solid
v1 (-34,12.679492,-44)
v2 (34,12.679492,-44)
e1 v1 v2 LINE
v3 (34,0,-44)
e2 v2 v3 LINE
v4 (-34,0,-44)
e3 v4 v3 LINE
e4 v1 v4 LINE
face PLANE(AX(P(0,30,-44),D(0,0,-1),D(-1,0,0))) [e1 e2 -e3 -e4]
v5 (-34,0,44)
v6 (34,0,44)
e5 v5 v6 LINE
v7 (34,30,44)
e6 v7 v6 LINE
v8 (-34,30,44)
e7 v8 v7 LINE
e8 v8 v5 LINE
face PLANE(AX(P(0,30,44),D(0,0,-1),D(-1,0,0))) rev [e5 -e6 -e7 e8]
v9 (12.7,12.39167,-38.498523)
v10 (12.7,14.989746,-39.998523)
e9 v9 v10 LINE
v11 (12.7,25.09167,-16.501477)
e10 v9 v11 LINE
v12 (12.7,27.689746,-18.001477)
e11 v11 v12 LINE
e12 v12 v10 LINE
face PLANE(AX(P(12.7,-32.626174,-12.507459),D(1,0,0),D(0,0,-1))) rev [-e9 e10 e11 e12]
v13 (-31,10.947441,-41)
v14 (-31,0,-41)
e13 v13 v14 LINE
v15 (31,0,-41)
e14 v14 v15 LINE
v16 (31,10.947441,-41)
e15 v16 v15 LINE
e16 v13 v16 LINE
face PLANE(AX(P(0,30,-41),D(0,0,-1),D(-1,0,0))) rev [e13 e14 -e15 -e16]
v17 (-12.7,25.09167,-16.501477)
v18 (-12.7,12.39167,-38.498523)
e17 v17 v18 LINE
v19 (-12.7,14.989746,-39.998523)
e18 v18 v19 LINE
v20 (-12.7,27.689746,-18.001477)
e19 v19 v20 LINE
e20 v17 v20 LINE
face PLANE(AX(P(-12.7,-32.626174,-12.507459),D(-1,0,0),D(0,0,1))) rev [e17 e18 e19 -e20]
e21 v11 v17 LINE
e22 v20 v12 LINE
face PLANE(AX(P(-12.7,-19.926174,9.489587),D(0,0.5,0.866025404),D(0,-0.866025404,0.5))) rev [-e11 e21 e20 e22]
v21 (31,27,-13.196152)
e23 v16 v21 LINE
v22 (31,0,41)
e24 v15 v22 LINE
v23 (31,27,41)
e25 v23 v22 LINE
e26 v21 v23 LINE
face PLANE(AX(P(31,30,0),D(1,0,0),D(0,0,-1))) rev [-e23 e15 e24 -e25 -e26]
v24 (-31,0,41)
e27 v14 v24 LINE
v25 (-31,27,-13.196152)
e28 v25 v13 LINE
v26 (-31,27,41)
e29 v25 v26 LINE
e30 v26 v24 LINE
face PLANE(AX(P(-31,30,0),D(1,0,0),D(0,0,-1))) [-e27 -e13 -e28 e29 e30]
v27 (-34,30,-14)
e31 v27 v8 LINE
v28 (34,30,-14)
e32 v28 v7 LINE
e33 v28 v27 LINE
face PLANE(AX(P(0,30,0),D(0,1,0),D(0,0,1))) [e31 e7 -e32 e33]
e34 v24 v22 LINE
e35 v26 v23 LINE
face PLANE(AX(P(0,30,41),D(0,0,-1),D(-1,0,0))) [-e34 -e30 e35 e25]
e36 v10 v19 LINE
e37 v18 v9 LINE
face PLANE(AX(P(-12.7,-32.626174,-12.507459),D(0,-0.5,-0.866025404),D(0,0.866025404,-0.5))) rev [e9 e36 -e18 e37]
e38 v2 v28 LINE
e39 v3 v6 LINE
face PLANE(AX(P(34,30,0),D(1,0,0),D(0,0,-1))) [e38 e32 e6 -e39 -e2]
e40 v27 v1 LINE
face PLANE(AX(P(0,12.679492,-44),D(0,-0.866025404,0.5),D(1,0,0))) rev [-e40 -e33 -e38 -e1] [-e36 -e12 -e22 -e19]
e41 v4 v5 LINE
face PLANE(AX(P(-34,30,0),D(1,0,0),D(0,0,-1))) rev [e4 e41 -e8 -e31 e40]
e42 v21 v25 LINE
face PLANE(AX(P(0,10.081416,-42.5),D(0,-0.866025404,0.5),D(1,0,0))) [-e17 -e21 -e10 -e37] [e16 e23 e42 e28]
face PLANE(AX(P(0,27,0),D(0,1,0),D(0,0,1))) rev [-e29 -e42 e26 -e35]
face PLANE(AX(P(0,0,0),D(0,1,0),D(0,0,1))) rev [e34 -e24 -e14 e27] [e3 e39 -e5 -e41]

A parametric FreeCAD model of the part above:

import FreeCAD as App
import Part
import Sketcher
from FreeCAD import Vector


def edges_at(feature, points):
    """Names of the edges that pass closest to the given points."""
    edges = feature.Shape.Edges
    near = lambda p: min(range(len(edges)), key=lambda i: edges[i].distToShape(Part.Vertex(*p))[0])
    return sorted({f"Edge{near(p) + 1}" for p in points})


def faces_at(feature, points):
    """Names of the faces that lie closest to the given points."""
    faces = feature.Shape.Faces
    near = lambda p: min(range(len(faces)), key=lambda i: faces[i].distToShape(Part.Vertex(*p))[0])
    return sorted({f"Face{near(p) + 1}" for p in points})


def add_polygon(sketch, points):
    """Adds a closed chain of lines whose ends are joined by coincident constraints."""
    first, n = sketch.GeometryCount, len(points)
    for a, b in zip(points, points[1:] + points[:1]):
        sketch.addGeometry(Part.LineSegment(App.Vector(*a, 0), App.Vector(*b, 0)), False)
    for i in range(n):
        sketch.addConstraint(Sketcher.Constraint("Coincident", first + i, 2, first + (i + 1) % n, 1))

doc = App.newDocument("Part")
body = doc.addObject("PartDesign::Body", "Body")

sketch1 = doc.addObject("Sketcher::SketchObject", "Sketch")
body.addObject(sketch1)
sketch1.AttachmentSupport = (doc.XZ_Plane, [""])
sketch1.MapMode = "FlatFace"
add_polygon(sketch1, [(-34, -44), (-34, 44), (34, 44), (34, -44)])
sketch1.addConstraint([
    Sketcher.Constraint("Vertical", 0),
    Sketcher.Constraint("Horizontal", 1),
    Sketcher.Constraint("Vertical", 2),
    Sketcher.Constraint("Horizontal", 3),
    Sketcher.Constraint("Symmetric", 0, 2, 2, 2, -1, 1),
    Sketcher.Constraint("DistanceX", 1, 1, 1, 2, 68.0),
    Sketcher.Constraint("DistanceY", 0, 1, 0, 2, 88.0),
])
pad1 = doc.addObject("PartDesign::Pad", "Pad")
body.addObject(pad1)
pad1.Profile = sketch1
pad1.Length = 30
pad1.Reversed = True
doc.recompute()

chamfer = doc.addObject("PartDesign::Chamfer", "Chamfer")
body.addObject(chamfer)
chamfer.Base = (pad1, edges_at(pad1, [(0, 30, -44)]))
chamfer.ChamferType = "Two distances"
chamfer.Size = 30
chamfer.Size2 = 17.320508
chamfer.FlipDirection = True
doc.recompute()

thickness = doc.addObject("PartDesign::Thickness", "Thickness")
body.addObject(thickness)
thickness.Base = (chamfer, faces_at(chamfer, [(0, 0, 0)]))
thickness.Value = 3
thickness.Reversed = True
thickness.Join = "Intersection"

sketch2 = doc.addObject("Sketcher::SketchObject", "Sketch001")
body.addObject(sketch2)
sketch2.Placement = App.Placement(Vector(0, 28.562178, -16.490381), App.Rotation(Vector(1, 0, 0), Vector(0, -0.5, -0.866025404), Vector(0, 0.866025404, -0.5), "ZXY"))
add_polygon(sketch2, [(-13, 27), (-13, 2), (13, 2), (13, 27)])
sketch2.addConstraint([
    Sketcher.Constraint("Vertical", 0),
    Sketcher.Constraint("Horizontal", 1),
    Sketcher.Constraint("Vertical", 2),
    Sketcher.Constraint("Horizontal", 3),
    Sketcher.Constraint("Equal", 3, 0),
    Sketcher.Constraint("DistanceX", 1, 1, 1, 2, 25.4),
    Sketcher.Constraint("DistanceX", 0, 2, -1, 1, 12.7),
    Sketcher.Constraint("DistanceY", -1, 1, 0, 2, 1.744864),
])
pocket1 = doc.addObject("PartDesign::Pocket", "Pocket")
body.addObject(pocket1)
pocket1.Profile = sketch2
pocket1.Type = "UpToFirst"

doc.recompute()
